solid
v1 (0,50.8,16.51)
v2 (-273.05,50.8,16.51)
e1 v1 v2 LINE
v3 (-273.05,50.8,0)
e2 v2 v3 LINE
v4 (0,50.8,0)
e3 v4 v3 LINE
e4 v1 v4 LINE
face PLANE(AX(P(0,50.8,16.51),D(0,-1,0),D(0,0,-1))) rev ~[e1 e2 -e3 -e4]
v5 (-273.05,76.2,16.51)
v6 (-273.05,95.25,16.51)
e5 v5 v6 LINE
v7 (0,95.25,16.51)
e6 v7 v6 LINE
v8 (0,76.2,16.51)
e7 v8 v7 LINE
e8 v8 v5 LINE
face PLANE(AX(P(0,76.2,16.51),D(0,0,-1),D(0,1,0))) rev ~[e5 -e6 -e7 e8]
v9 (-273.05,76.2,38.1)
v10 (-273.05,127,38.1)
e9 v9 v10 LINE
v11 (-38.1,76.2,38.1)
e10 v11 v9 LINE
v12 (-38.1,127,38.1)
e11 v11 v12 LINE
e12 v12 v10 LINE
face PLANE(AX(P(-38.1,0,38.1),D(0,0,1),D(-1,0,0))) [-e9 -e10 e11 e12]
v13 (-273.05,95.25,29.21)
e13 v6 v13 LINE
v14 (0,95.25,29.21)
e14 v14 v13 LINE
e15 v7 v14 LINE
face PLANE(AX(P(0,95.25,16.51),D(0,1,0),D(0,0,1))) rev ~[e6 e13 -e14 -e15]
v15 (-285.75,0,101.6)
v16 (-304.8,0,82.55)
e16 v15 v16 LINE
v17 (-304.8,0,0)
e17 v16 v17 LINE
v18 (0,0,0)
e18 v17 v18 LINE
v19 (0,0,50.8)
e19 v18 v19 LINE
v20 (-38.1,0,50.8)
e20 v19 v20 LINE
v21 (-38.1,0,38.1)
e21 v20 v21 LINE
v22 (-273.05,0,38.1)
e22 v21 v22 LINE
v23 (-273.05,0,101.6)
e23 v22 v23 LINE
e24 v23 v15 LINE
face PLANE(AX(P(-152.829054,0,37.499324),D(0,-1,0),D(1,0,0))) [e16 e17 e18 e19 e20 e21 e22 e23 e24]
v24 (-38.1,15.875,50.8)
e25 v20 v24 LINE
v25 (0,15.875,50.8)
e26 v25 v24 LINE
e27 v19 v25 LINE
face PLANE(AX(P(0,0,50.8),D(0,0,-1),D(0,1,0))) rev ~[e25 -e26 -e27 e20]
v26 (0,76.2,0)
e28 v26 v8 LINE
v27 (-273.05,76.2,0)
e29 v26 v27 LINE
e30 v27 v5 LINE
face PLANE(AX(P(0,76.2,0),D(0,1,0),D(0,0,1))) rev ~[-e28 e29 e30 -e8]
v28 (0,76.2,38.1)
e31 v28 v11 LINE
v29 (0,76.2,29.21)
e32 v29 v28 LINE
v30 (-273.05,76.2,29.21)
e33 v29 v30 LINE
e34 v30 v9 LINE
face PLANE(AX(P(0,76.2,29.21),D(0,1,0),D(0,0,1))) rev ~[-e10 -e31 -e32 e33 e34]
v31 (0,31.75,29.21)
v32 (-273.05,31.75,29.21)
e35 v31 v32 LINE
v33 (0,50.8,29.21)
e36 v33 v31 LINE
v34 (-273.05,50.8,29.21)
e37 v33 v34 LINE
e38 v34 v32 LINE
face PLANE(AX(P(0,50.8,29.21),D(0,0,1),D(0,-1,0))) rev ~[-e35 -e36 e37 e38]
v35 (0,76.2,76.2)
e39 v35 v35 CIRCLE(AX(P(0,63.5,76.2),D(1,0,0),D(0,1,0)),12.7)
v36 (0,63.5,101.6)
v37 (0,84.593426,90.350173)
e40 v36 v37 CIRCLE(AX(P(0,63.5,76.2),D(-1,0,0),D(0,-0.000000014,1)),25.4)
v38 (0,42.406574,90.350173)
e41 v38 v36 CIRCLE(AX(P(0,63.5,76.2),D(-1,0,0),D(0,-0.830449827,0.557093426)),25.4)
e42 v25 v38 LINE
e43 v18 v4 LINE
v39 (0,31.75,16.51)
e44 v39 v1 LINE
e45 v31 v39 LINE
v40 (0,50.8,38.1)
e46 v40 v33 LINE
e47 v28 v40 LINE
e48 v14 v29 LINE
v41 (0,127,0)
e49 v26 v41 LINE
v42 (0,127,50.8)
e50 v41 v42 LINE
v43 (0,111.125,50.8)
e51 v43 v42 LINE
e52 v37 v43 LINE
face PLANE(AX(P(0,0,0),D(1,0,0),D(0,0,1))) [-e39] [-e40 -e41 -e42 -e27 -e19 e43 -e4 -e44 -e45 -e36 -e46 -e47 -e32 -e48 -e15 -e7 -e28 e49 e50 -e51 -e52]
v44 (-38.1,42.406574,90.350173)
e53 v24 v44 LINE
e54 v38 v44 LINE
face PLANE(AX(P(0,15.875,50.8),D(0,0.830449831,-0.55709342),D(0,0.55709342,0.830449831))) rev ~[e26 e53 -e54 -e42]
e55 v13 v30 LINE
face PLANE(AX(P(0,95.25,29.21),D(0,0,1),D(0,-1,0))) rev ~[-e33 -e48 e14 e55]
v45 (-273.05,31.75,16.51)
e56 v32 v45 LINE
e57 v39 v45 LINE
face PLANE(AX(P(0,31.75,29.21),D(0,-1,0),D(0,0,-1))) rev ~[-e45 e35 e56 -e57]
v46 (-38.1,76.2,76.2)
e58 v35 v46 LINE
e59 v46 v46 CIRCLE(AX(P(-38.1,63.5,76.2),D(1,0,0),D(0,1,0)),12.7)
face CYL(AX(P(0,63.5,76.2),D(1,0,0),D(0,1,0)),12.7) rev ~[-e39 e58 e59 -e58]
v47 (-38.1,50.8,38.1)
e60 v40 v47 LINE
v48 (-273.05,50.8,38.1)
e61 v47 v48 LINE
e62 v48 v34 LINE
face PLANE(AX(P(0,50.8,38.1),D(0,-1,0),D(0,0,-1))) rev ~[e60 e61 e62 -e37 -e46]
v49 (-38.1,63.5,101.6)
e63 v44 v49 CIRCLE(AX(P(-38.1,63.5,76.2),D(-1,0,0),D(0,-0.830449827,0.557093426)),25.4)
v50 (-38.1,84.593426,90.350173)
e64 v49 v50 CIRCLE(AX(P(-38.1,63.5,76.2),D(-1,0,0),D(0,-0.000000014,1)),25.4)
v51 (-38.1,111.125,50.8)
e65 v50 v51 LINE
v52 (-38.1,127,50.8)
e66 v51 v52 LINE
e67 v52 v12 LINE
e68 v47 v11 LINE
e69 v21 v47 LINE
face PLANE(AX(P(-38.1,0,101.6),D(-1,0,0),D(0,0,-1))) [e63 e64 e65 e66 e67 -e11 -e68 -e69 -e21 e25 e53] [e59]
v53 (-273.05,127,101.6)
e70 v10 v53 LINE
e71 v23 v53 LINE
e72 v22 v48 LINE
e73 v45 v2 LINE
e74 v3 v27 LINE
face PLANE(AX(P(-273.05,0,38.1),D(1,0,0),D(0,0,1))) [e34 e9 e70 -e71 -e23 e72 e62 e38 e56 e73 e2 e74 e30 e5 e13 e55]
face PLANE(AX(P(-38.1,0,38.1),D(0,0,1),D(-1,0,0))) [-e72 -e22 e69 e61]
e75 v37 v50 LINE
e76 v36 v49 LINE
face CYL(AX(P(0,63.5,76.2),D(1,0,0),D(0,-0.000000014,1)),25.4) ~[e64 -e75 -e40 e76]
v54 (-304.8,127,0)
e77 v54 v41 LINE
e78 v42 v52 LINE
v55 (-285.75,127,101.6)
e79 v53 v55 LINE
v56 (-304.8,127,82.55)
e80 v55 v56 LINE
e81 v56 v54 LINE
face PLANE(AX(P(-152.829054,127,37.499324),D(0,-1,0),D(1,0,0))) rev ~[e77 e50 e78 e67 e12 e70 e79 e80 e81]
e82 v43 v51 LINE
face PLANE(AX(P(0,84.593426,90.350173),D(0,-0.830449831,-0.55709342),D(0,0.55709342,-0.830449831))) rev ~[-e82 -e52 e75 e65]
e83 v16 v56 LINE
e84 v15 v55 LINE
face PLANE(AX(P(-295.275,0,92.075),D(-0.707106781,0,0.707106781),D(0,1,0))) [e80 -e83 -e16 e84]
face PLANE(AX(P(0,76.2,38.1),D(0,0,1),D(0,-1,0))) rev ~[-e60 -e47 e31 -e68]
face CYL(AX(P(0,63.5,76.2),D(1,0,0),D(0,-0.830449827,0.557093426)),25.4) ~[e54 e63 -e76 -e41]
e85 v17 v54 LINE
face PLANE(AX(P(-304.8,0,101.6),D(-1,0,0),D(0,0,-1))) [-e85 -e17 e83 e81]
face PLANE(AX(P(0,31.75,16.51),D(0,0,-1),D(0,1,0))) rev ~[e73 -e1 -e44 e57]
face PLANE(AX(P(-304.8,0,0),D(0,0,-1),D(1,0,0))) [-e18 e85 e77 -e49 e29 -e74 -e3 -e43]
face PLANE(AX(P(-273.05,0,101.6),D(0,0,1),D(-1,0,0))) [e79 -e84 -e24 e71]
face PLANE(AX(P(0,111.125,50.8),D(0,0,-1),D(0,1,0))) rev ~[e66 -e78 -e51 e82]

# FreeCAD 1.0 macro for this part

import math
import FreeCAD as App
import Part
import Sketcher
from FreeCAD import Vector
Q = App.Units.Quantity


def edges_at(feature, points):
    """Names of the edges that pass closest to the given points."""
    edges = feature.Shape.Edges
    near = lambda p: min(range(len(edges)), key=lambda i: edges[i].distToShape(Part.Vertex(*p))[0])
    return sorted({f"Edge{near(p) + 1}" for p in points})

doc = App.newDocument("Part")
body = doc.addObject("PartDesign::Body", "Body")

sketch1 = body.newObject("Sketcher::SketchObject", "Sketch")
sketch1.AttachmentSupport = (doc.getObject("XZ_Plane"), [""])
sketch1.MapMode = "FlatFace"
sketch1.addGeometry(Part.LineSegment(Vector(-305, 0, 0), Vector(0, 0, 0)), False)
sketch1.addGeometry(Part.LineSegment(Vector(0, 0, 0), Vector(0, 102, 0)), False)
sketch1.addGeometry(Part.LineSegment(Vector(0, 102, 0), Vector(-38, 102, 0)), False)
sketch1.addGeometry(Part.LineSegment(Vector(-38, 102, 0), Vector(-38, 38, 0)), False)
sketch1.addGeometry(Part.LineSegment(Vector(-38, 38, 0), Vector(-273, 38, 0)), False)
sketch1.addGeometry(Part.LineSegment(Vector(-273, 38, 0), Vector(-273, 102, 0)), False)
sketch1.addGeometry(Part.LineSegment(Vector(-273, 102, 0), Vector(-305, 102, 0)), False)
sketch1.addGeometry(Part.LineSegment(Vector(-305, 102, 0), Vector(-305, 0, 0)), False)
sketch1.addConstraint(Sketcher.Constraint("Coincident", 0, 2, 1, 1))
sketch1.addConstraint(Sketcher.Constraint("Coincident", 1, 2, 2, 1))
sketch1.addConstraint(Sketcher.Constraint("Coincident", 2, 2, 3, 1))
sketch1.addConstraint(Sketcher.Constraint("Coincident", 3, 2, 4, 1))
sketch1.addConstraint(Sketcher.Constraint("Coincident", 4, 2, 5, 1))
sketch1.addConstraint(Sketcher.Constraint("Coincident", 5, 2, 6, 1))
sketch1.addConstraint(Sketcher.Constraint("Coincident", 6, 2, 7, 1))
sketch1.addConstraint(Sketcher.Constraint("Coincident", 7, 2, 0, 1))
sketch1.addConstraint(Sketcher.Constraint("Horizontal", 0))
sketch1.addConstraint(Sketcher.Constraint("Vertical", 1))
sketch1.addConstraint(Sketcher.Constraint("Horizontal", 2))
sketch1.addConstraint(Sketcher.Constraint("Vertical", 3))
sketch1.addConstraint(Sketcher.Constraint("Horizontal", 4))
sketch1.addConstraint(Sketcher.Constraint("Vertical", 5))
sketch1.addConstraint(Sketcher.Constraint("Horizontal", 6))
sketch1.addConstraint(Sketcher.Constraint("Vertical", 7))
sketch1.addConstraint(Sketcher.Constraint("Coincident", 0, 2, -1, 1))
sketch1.addConstraint(Sketcher.Constraint("Horizontal", 2, 2, 5, 2))
sketch1.addConstraint(Sketcher.Constraint("DistanceX", 0, 1, 0, 2, Q("12 in")))
sketch1.addConstraint(Sketcher.Constraint("DistanceY", 1, 1, 1, 2, Q("4 in")))
sketch1.addConstraint(Sketcher.Constraint("DistanceX", 2, 2, 2, 1, Q("1.5 in")))
sketch1.addConstraint(Sketcher.Constraint("DistanceY", 3, 2, 3, 1, Q("2.5 in")))
sketch1.addConstraint(Sketcher.Constraint("DistanceX", 4, 2, 4, 1, Q("9.25 in")))
pad1 = body.newObject("PartDesign::Pad", "Pad")
pad1.Profile = sketch1
pad1.Length = Q("5 in")
pad1.Reversed = True
doc.recompute()

chamfer = body.newObject("PartDesign::Chamfer", "Chamfer")
chamfer.Base = (pad1, edges_at(pad1, [(-304.8, 63.5, 101.6)]))
chamfer.Size = Q("0.75 in")

sketch2 = body.newObject("Sketcher::SketchObject", "Sketch001")
sketch2.AttachmentSupport = (doc.getObject("YZ_Plane"), [""])
sketch2.MapMode = "FlatFace"
sketch2.addGeometry(Part.LineSegment(Vector(51, 0, 0), Vector(76, 0, 0)), False)
sketch2.addGeometry(Part.LineSegment(Vector(76, 0, 0), Vector(76, 17, 0)), False)
sketch2.addGeometry(Part.LineSegment(Vector(76, 17, 0), Vector(95, 17, 0)), False)
sketch2.addGeometry(Part.LineSegment(Vector(95, 17, 0), Vector(95, 29, 0)), False)
sketch2.addGeometry(Part.LineSegment(Vector(95, 29, 0), Vector(76, 29, 0)), False)
sketch2.addGeometry(Part.LineSegment(Vector(76, 29, 0), Vector(76, 38, 0)), False)
sketch2.addGeometry(Part.LineSegment(Vector(76, 38, 0), Vector(51, 38, 0)), False)
sketch2.addGeometry(Part.LineSegment(Vector(51, 38, 0), Vector(51, 29, 0)), False)
sketch2.addGeometry(Part.LineSegment(Vector(51, 29, 0), Vector(32, 29, 0)), False)
sketch2.addGeometry(Part.LineSegment(Vector(32, 29, 0), Vector(32, 17, 0)), False)
sketch2.addGeometry(Part.LineSegment(Vector(32, 17, 0), Vector(51, 17, 0)), False)
sketch2.addGeometry(Part.LineSegment(Vector(51, 17, 0), Vector(51, 0, 0)), False)
sketch2.addConstraint(Sketcher.Constraint("Coincident", 0, 2, 1, 1))
sketch2.addConstraint(Sketcher.Constraint("Coincident", 1, 2, 2, 1))
sketch2.addConstraint(Sketcher.Constraint("Coincident", 2, 2, 3, 1))
sketch2.addConstraint(Sketcher.Constraint("Coincident", 3, 2, 4, 1))
sketch2.addConstraint(Sketcher.Constraint("Coincident", 4, 2, 5, 1))
sketch2.addConstraint(Sketcher.Constraint("Coincident", 5, 2, 6, 1))
sketch2.addConstraint(Sketcher.Constraint("Coincident", 6, 2, 7, 1))
sketch2.addConstraint(Sketcher.Constraint("Coincident", 7, 2, 8, 1))
sketch2.addConstraint(Sketcher.Constraint("Coincident", 8, 2, 9, 1))
sketch2.addConstraint(Sketcher.Constraint("Coincident", 9, 2, 10, 1))
sketch2.addConstraint(Sketcher.Constraint("Coincident", 10, 2, 11, 1))
sketch2.addConstraint(Sketcher.Constraint("Coincident", 11, 2, 0, 1))
sketch2.addConstraint(Sketcher.Constraint("Horizontal", 0))
sketch2.addConstraint(Sketcher.Constraint("Vertical", 1))
sketch2.addConstraint(Sketcher.Constraint("Horizontal", 2))
sketch2.addConstraint(Sketcher.Constraint("Vertical", 3))
sketch2.addConstraint(Sketcher.Constraint("Horizontal", 4))
sketch2.addConstraint(Sketcher.Constraint("Vertical", 5))
sketch2.addConstraint(Sketcher.Constraint("Horizontal", 6))
sketch2.addConstraint(Sketcher.Constraint("Vertical", 7))
sketch2.addConstraint(Sketcher.Constraint("Horizontal", 8))
sketch2.addConstraint(Sketcher.Constraint("Vertical", 9))
sketch2.addConstraint(Sketcher.Constraint("Horizontal", 10))
sketch2.addConstraint(Sketcher.Constraint("Vertical", 11))
sketch2.addConstraint(Sketcher.Constraint("PointOnObject", 0, 2, -1))
sketch2.addConstraint(Sketcher.Constraint("Horizontal", 4, 2, 7, 2))
sketch2.addConstraint(Sketcher.Constraint("Horizontal", 2, 2, 9, 2))
sketch2.addConstraint(Sketcher.Constraint("Vertical", 1, 2, 4, 2))
sketch2.addConstraint(Sketcher.Constraint("Vertical", 7, 2, 10, 2))
sketch2.addConstraint(Sketcher.Constraint("Equal", 4, 8))
sketch2.addConstraint(Sketcher.Constraint("DistanceX", 0, 1, 0, 2, Q("1 in")))
sketch2.addConstraint(Sketcher.Constraint("DistanceY", 3, 1, 3, 2, Q("0.5 in")))
sketch2.addConstraint(Sketcher.Constraint("DistanceX", -1, 1, 0, 2, Q("3 in")))
sketch2.addConstraint(Sketcher.Constraint("DistanceX", 2, 1, 2, 2, Q("0.75 in")))
sketch2.addConstraint(Sketcher.Constraint("DistanceY", 1, 1, 1, 2, Q("0.65 in")))
sketch2.addConstraint(Sketcher.Constraint("DistanceY", 5, 1, 5, 2, Q("0.35 in")))
pocket1 = body.newObject("PartDesign::Pocket", "Pocket")
pocket1.Profile = sketch2
pocket1.Length = Q("10.75 in")

sketch3 = body.newObject("Sketcher::SketchObject", "Sketch002")
sketch3.AttachmentSupport = (doc.getObject("YZ_Plane"), [""])
sketch3.MapMode = "FlatFace"
sketch3.addGeometry(Part.ArcOfCircle(Part.Circle(Vector(63, 76, 0), Vector(0, 0, 1), 25), math.radians(90), math.radians(146)), False)
sketch3.addGeometry(Part.LineSegment(Vector(64, 102, 0), Vector(0, 102, 0)), False)
sketch3.addGeometry(Part.LineSegment(Vector(0, 102, 0), Vector(0, 51, 0)), False)
sketch3.addGeometry(Part.LineSegment(Vector(0, 51, 0), Vector(16, 51, 0)), False)
sketch3.addGeometry(Part.LineSegment(Vector(16, 51, 0), Vector(42, 90, 0)), False)
sketch3.addGeometry(Part.LineSegment(Vector(127, 102, 0), Vector(64, 102, 0)), False)
sketch3.addGeometry(Part.ArcOfCircle(Part.Circle(Vector(64, 76, 0), Vector(0, 0, 1), 25), math.radians(34), math.radians(90)), False)
sketch3.addGeometry(Part.LineSegment(Vector(85, 90, 0), Vector(111, 51, 0)), False)
sketch3.addGeometry(Part.LineSegment(Vector(111, 51, 0), Vector(127, 51, 0)), False)
sketch3.addGeometry(Part.LineSegment(Vector(127, 51, 0), Vector(127, 102, 0)), False)
sketch3.addGeometry(Part.Circle(Vector(64, 76, 0), Vector(0, 0, 1), 13), False)
sketch3.addConstraint(Sketcher.Constraint("Tangent", 0, 1, 1, 1))
sketch3.addConstraint(Sketcher.Constraint("Coincident", 1, 2, 2, 1))
sketch3.addConstraint(Sketcher.Constraint("Coincident", 2, 2, 3, 1))
sketch3.addConstraint(Sketcher.Constraint("Coincident", 3, 2, 4, 1))
sketch3.addConstraint(Sketcher.Constraint("Tangent", 4, 2, 0, 2))
sketch3.addConstraint(Sketcher.Constraint("Tangent", 5, 2, 6, 2))
sketch3.addConstraint(Sketcher.Constraint("Tangent", 6, 1, 7, 1))
sketch3.addConstraint(Sketcher.Constraint("Coincident", 7, 2, 8, 1))
sketch3.addConstraint(Sketcher.Constraint("Coincident", 8, 2, 9, 1))
sketch3.addConstraint(Sketcher.Constraint("Coincident", 9, 2, 5, 1))
sketch3.addConstraint(Sketcher.Constraint("Horizontal", 1))
sketch3.addConstraint(Sketcher.Constraint("Vertical", 2))
sketch3.addConstraint(Sketcher.Constraint("Horizontal", 3))
sketch3.addConstraint(Sketcher.Constraint("Horizontal", 5))
sketch3.addConstraint(Sketcher.Constraint("Horizontal", 8))
sketch3.addConstraint(Sketcher.Constraint("Vertical", 9))
sketch3.addConstraint(Sketcher.Constraint("Coincident", 6, 3, 0, 3))
sketch3.addConstraint(Sketcher.Constraint("Coincident", 10, 3, 0, 3))
sketch3.addConstraint(Sketcher.Constraint("Equal", 0, 6))
sketch3.addConstraint(Sketcher.Constraint("PointOnObject", 1, 2, -2))
sketch3.addConstraint(Sketcher.Constraint("Horizontal", 4, 2, 6, 1))
sketch3.addConstraint(Sketcher.Constraint("Horizontal", 3, 2, 7, 2))
sketch3.addConstraint(Sketcher.Constraint("Equal", 1, 5))
sketch3.addConstraint(Sketcher.Constraint("Diameter", 10, Q("1 in")))
sketch3.addConstraint(Sketcher.Constraint("Radius", 0, Q("1 in")))
sketch3.addConstraint(Sketcher.Constraint("DistanceY", 2, 2, 2, 1, Q("2 in")))
sketch3.addConstraint(Sketcher.Constraint("DistanceX", 1, 2, 1, 1, Q("2.5 in")))
sketch3.addConstraint(Sketcher.Constraint("DistanceY", -1, 1, 0, 3, Q("3 in")))
sketch3.addConstraint(Sketcher.Constraint("DistanceX", 3, 1, 3, 2, Q("0.625 in")))
pocket2 = body.newObject("PartDesign::Pocket", "Pocket001")
pocket2.Profile = sketch3
pocket2.Length = Q("1.5 in")

doc.recompute()
